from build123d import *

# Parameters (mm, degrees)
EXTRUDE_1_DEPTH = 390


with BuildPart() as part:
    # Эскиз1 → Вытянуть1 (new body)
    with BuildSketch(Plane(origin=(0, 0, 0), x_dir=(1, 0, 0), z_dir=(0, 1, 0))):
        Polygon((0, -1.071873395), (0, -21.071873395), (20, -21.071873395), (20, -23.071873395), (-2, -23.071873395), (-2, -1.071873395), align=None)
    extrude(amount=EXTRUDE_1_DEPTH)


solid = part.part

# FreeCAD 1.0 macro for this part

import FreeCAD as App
import Part
import Sketcher

V = App.Vector
Q = App.Units.Quantity

doc = App.newDocument("Part")
body = doc.addObject("PartDesign::Body", "Body")

# Sketch on XZ plane
sketch1 = body.newObject("Sketcher::SketchObject", "Sketch")
sketch1.AttachmentSupport = (doc.getObject("XZ_Plane"), [""])
sketch1.MapMode = "FlatFace"
sketch1.addGeometry([
    Part.LineSegment(V(0, 21.1, 0), V(0, 1.1, 0)),  # 0
    Part.LineSegment(V(0, 1.1, 0), V(-2, 1.1, 0)),  # 1
    Part.LineSegment(V(-2, 1.1, 0), V(-2, 23.1, 0)),  # 2
    Part.LineSegment(V(-2, 23.1, 0), V(20, 23.1, 0)),  # 3
    Part.LineSegment(V(20, 23.1, 0), V(20, 21.1, 0)),  # 4
    Part.LineSegment(V(20, 21.1, 0), V(0, 21.1, 0)),  # 5
], False)
sketch1.addConstraint([
    Sketcher.Constraint("Coincident", 0, 2, 1, 1),
    Sketcher.Constraint("Coincident", 1, 2, 2, 1),
    Sketcher.Constraint("Coincident", 2, 2, 3, 1),
    Sketcher.Constraint("Coincident", 3, 2, 4, 1),
    Sketcher.Constraint("Coincident", 4, 2, 5, 1),
    Sketcher.Constraint("Coincident", 5, 2, 0, 1),
    Sketcher.Constraint("Vertical", 0),
    Sketcher.Constraint("Horizontal", 1),
    Sketcher.Constraint("Vertical", 2),
    Sketcher.Constraint("Horizontal", 3),
    Sketcher.Constraint("Vertical", 4),
    Sketcher.Constraint("Horizontal", 5),
    Sketcher.Constraint("PointOnObject", 0, 2, -2),
    Sketcher.Constraint("Equal", 5, 0),
    Sketcher.Constraint("Equal", 3, 2),
    Sketcher.Constraint("DistanceX", 1, 2, 1, 1, Q("2 mm")),
    Sketcher.Constraint("DistanceX", 3, 1, 3, 2, Q("22 mm")),
    Sketcher.Constraint("DistanceY", -1, 1, 0, 2, Q("1.071873 mm")),
])
pad1 = body.newObject("PartDesign::Pad", "Pad")
pad1.Profile = sketch1
pad1.Length = 390
pad1.Reversed = True

doc.recompute()
